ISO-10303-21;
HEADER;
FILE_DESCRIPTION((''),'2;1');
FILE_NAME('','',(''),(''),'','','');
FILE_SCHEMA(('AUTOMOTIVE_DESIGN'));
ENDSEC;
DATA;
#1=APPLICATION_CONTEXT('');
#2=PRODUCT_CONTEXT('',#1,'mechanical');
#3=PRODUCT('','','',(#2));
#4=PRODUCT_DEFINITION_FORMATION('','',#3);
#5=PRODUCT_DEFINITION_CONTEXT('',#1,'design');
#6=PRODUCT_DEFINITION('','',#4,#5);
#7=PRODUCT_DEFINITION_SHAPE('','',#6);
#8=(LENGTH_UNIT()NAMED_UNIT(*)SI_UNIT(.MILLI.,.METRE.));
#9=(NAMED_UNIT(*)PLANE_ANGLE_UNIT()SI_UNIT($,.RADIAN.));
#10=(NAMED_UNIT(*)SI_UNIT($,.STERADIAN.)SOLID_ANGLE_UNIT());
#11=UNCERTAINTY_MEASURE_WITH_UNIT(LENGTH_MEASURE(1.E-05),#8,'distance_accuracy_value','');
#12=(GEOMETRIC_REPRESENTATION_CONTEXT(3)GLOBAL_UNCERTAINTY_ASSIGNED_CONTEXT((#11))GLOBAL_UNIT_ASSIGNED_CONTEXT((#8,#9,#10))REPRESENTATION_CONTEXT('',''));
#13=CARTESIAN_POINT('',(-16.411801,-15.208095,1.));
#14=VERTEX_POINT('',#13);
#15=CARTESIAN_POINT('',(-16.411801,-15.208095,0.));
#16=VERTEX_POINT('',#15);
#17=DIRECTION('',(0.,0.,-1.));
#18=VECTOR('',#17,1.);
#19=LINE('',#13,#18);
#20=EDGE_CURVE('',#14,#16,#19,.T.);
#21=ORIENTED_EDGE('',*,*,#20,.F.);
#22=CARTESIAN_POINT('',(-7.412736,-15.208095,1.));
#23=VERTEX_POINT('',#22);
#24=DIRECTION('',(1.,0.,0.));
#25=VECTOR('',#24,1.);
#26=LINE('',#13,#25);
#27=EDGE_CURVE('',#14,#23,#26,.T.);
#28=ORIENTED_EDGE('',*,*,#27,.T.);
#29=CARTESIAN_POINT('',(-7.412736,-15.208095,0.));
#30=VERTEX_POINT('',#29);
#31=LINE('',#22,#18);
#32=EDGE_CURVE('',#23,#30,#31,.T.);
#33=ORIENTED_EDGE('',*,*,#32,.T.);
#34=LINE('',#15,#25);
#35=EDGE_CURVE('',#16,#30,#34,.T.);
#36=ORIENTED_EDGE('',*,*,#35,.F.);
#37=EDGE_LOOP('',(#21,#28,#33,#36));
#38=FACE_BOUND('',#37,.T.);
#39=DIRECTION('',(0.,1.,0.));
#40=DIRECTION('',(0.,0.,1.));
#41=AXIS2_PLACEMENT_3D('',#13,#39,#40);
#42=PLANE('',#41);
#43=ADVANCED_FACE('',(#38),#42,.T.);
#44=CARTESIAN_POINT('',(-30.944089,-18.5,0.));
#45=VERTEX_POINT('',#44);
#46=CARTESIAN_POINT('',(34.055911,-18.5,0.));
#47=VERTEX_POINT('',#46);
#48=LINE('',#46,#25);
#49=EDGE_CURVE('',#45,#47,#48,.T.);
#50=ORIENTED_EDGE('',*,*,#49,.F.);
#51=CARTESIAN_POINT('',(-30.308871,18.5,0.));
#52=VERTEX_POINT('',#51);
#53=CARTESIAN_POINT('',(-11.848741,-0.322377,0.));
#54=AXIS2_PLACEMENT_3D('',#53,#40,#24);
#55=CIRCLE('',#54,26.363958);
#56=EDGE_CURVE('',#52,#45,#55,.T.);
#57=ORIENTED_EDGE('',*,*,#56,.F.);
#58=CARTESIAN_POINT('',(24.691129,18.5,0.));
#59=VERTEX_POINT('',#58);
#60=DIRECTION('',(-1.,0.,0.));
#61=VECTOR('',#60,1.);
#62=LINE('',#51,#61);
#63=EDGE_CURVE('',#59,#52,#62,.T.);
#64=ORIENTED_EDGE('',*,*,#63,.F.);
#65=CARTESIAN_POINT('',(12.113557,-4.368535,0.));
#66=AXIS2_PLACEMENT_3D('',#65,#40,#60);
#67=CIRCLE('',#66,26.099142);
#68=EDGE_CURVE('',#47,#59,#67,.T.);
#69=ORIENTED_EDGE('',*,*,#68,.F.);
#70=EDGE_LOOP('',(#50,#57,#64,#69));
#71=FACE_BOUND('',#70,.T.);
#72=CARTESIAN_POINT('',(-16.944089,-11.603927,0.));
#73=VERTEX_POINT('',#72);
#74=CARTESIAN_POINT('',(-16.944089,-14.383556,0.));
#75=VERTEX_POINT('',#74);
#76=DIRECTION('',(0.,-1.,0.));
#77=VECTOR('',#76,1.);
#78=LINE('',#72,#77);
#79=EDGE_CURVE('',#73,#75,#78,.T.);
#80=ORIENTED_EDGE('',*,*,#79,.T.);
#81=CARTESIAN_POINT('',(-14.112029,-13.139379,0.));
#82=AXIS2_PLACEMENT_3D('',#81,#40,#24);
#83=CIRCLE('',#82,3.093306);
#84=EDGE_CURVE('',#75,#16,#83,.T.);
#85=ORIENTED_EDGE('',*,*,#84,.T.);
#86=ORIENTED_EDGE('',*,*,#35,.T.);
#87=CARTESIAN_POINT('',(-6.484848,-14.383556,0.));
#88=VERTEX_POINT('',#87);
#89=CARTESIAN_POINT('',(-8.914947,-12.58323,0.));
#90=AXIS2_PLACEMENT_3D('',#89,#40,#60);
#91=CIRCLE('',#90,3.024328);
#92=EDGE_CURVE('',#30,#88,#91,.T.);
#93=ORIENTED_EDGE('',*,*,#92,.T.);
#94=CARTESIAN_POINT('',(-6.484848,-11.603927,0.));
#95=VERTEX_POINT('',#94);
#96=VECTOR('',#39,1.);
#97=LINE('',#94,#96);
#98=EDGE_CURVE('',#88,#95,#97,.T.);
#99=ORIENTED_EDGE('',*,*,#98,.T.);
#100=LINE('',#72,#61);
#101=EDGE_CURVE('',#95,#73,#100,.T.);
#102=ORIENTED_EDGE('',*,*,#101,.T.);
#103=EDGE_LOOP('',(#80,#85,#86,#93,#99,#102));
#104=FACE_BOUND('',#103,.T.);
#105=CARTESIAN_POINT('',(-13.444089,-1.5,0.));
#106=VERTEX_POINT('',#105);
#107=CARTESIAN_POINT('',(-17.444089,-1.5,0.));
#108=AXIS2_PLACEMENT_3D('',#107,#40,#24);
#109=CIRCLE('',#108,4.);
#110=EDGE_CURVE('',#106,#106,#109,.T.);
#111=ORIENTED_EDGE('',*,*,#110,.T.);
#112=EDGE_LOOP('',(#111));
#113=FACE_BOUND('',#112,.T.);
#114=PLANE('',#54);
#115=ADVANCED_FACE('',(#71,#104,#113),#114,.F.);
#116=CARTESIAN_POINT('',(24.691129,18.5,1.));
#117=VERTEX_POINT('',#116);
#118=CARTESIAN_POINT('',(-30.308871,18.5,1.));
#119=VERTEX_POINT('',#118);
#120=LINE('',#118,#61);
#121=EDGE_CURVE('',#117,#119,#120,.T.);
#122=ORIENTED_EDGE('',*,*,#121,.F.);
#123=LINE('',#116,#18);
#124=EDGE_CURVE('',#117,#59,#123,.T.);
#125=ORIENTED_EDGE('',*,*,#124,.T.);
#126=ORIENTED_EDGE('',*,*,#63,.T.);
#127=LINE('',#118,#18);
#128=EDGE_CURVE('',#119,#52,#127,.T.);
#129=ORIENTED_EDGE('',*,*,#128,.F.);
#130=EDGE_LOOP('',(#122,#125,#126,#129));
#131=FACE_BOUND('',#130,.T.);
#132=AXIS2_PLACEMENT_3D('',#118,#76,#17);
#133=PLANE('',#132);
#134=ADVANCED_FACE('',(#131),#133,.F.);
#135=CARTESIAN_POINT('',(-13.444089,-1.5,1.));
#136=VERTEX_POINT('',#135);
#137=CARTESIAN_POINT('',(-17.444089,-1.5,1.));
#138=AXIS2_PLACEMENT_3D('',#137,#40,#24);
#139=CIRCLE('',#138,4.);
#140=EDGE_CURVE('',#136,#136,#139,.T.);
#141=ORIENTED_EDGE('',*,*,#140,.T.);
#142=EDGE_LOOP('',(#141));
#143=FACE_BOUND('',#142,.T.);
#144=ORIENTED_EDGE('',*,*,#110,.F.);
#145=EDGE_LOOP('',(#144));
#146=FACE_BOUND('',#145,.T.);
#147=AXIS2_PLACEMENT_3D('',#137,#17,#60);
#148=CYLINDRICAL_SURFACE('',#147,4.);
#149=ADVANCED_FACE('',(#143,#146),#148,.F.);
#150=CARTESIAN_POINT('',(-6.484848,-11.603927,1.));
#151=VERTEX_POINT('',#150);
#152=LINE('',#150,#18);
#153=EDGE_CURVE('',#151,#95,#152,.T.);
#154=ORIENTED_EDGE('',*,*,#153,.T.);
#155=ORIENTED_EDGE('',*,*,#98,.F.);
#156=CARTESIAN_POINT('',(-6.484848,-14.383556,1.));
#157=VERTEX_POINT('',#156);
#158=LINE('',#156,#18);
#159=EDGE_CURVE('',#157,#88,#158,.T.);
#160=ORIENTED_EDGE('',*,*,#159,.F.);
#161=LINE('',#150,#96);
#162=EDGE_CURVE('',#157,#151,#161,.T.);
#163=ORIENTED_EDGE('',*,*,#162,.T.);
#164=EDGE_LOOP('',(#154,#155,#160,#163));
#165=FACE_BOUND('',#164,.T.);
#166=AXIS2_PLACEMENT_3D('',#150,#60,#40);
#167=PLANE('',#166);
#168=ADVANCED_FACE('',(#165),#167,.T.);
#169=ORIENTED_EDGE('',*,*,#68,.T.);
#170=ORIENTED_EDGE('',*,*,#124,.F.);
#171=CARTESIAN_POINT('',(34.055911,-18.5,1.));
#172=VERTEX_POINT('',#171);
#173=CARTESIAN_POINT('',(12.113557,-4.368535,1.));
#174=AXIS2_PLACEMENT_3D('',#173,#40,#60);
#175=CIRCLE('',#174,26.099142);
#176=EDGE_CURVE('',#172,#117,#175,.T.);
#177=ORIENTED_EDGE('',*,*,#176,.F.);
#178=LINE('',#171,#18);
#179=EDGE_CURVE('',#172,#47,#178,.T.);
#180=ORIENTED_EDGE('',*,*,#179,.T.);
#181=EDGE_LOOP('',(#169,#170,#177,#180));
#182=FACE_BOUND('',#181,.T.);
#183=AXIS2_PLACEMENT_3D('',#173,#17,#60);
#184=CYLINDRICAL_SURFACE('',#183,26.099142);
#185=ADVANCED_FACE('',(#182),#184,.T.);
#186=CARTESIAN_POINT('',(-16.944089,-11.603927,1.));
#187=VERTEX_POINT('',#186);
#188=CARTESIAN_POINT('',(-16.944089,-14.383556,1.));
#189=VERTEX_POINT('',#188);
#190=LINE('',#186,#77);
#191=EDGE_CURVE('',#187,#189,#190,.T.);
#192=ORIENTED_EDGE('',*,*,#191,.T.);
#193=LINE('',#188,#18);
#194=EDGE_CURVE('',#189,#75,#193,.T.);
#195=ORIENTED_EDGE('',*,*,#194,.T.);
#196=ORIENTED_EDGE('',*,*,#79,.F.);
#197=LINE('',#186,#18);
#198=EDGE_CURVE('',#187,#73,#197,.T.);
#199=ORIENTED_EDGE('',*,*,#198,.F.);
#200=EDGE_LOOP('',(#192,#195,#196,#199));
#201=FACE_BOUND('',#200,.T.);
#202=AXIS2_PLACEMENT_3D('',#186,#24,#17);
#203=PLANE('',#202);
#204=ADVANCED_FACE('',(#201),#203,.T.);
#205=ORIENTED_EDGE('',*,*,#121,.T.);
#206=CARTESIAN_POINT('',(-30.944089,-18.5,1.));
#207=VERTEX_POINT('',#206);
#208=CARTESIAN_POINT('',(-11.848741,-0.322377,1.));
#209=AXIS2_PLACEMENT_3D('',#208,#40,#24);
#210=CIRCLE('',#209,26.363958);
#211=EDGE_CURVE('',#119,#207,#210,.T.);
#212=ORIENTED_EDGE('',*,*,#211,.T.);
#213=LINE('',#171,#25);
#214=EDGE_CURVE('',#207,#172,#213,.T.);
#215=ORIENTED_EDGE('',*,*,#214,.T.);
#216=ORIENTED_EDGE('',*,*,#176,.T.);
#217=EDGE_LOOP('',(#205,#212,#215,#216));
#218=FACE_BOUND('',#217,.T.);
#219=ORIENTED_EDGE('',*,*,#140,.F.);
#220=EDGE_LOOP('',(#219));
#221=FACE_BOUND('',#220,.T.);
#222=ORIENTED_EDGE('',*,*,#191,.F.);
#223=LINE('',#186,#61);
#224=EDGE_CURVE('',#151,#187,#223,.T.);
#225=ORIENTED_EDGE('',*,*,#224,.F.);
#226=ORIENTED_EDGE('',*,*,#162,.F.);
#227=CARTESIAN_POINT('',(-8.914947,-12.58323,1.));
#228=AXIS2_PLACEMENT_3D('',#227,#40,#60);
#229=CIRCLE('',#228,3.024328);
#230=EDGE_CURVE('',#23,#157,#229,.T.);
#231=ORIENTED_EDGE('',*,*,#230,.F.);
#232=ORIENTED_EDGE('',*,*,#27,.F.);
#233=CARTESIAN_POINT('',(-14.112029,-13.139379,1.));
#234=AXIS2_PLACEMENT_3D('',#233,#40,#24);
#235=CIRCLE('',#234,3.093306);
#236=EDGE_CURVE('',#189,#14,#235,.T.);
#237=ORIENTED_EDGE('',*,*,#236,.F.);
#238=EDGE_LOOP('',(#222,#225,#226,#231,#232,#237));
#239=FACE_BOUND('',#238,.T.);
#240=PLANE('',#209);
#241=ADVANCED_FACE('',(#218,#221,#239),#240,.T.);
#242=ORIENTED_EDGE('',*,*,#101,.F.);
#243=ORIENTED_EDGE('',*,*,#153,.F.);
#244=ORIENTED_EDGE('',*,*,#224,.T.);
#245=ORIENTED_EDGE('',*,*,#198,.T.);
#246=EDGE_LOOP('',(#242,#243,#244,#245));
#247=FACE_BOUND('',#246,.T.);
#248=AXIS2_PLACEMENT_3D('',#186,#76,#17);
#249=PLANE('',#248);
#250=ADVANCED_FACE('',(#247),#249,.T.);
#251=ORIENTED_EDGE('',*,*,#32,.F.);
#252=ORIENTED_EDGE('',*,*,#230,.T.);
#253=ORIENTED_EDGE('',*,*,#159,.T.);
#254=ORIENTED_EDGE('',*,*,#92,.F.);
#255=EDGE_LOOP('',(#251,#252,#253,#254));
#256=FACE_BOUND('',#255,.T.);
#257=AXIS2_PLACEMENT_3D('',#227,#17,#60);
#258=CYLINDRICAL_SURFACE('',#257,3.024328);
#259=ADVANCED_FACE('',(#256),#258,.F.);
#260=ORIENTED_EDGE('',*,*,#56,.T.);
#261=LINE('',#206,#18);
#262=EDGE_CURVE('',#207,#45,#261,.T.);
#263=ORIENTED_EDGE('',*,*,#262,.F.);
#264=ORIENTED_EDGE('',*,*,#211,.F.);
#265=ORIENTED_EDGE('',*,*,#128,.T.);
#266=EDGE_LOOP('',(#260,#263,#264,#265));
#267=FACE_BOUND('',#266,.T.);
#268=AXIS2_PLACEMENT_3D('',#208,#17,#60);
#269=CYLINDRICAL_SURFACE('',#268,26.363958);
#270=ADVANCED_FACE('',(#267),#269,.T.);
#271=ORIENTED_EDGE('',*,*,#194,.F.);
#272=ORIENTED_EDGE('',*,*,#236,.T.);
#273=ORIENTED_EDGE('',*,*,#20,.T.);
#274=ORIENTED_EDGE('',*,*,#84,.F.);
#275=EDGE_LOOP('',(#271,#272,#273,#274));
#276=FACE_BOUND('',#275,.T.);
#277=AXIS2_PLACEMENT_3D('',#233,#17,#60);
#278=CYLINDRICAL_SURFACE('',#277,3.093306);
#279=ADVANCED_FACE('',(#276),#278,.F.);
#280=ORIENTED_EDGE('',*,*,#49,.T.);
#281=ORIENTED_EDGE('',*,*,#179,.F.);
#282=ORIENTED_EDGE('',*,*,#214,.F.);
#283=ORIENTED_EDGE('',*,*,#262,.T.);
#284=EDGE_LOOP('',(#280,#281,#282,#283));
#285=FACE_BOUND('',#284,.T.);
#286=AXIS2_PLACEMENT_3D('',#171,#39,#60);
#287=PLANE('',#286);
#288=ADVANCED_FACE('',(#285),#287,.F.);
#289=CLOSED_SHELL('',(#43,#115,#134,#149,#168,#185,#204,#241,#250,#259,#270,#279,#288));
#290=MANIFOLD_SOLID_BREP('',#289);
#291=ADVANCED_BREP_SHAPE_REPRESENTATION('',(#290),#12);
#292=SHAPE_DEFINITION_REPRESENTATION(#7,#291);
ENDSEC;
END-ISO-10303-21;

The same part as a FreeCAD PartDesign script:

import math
import FreeCAD as App
import Part
import Sketcher
Q = App.Units.Quantity

doc = App.newDocument("Part")
body = doc.addObject("PartDesign::Body", "Body")

# Sketch on XY plane
sketch1 = body.newObject("Sketcher::SketchObject", "Sketch")
sketch1.AttachmentSupport = (doc.getObject("XY_Plane"), [""])
sketch1.MapMode = "FlatFace"
sketch1.addGeometry(Part.LineSegment(App.Vector(24.7, 18.5, 0), App.Vector(-30.3, 18.5, 0)), False)
sketch1.addGeometry(Part.ArcOfCircle(Part.Circle(App.Vector(-11.8, -0.3, 0), App.Vector(0, 0, 1), 26.4), math.radians(134), math.radians(224)), False)
sketch1.addGeometry(Part.LineSegment(App.Vector(-30.9, -18.5, 0), App.Vector(34.1, -18.5, 0)), False)
sketch1.addGeometry(Part.ArcOfCircle(Part.Circle(App.Vector(12.1, -4.4, 0), App.Vector(0, 0, 1), 26.1), math.radians(-33), math.radians(61)), False)
sketch1.addGeometry(Part.LineSegment(App.Vector(-16.9, -11.6, 0), App.Vector(-6.5, -11.6, 0)), False)
sketch1.addGeometry(Part.LineSegment(App.Vector(-6.5, -11.6, 0), App.Vector(-6.5, -14.4, 0)), False)
sketch1.addGeometry(Part.ArcOfCircle(Part.Circle(App.Vector(-8.9, -12.6, 0), App.Vector(0, 0, 1), 3), math.radians(-60), math.radians(-37)), False)
sketch1.addGeometry(Part.LineSegment(App.Vector(-7.4, -15.2, 0), App.Vector(-16.4, -15.2, 0)), False)
sketch1.addGeometry(Part.ArcOfCircle(Part.Circle(App.Vector(-14.1, -13.1, 0), App.Vector(0, 0, 1), 3.1), math.radians(-156.28), math.radians(-138.03)), False)
sketch1.addGeometry(Part.LineSegment(App.Vector(-16.9, -14.4, 0), App.Vector(-16.9, -11.6, 0)), False)
sketch1.addGeometry(Part.Circle(App.Vector(-17.4, -1.5, 0), App.Vector(0, 0, 1), 4), False)
sketch1.addConstraint(Sketcher.Constraint("Coincident", 0, 2, 1, 1))
sketch1.addConstraint(Sketcher.Constraint("Coincident", 1, 2, 2, 1))
sketch1.addConstraint(Sketcher.Constraint("Coincident", 2, 2, 3, 1))
sketch1.addConstraint(Sketcher.Constraint("Coincident", 3, 2, 0, 1))
sketch1.addConstraint(Sketcher.Constraint("Coincident", 4, 2, 5, 1))
sketch1.addConstraint(Sketcher.Constraint("Coincident", 5, 2, 6, 2))
sketch1.addConstraint(Sketcher.Constraint("Coincident", 6, 1, 7, 1))
sketch1.addConstraint(Sketcher.Constraint("Coincident", 7, 2, 8, 2))
sketch1.addConstraint(Sketcher.Constraint("Coincident", 8, 1, 9, 1))
sketch1.addConstraint(Sketcher.Constraint("Coincident", 9, 2, 4, 1))
sketch1.addConstraint(Sketcher.Constraint("Horizontal", 0))
sketch1.addConstraint(Sketcher.Constraint("Horizontal", 2))
sketch1.addConstraint(Sketcher.Constraint("Horizontal", 4))
sketch1.addConstraint(Sketcher.Constraint("Vertical", 5))
sketch1.addConstraint(Sketcher.Constraint("Horizontal", 7))
sketch1.addConstraint(Sketcher.Constraint("Vertical", 9))
sketch1.addConstraint(Sketcher.Constraint("Horizontal", 5, 2, 8, 1))
sketch1.addConstraint(Sketcher.Constraint("Diameter", 10, Q("8 mm")))
sketch1.addConstraint(Sketcher.Constraint("DistanceX", 0, 2, 0, 1, Q("55 mm")))
sketch1.addConstraint(Sketcher.Constraint("DistanceX", 2, 1, 2, 2, Q("65 mm")))
sketch1.addConstraint(Sketcher.Constraint("DistanceY", 10, 3, 0, 2, Q("20 mm")))
sketch1.addConstraint(Sketcher.Constraint("DistanceY", 1, 2, 10, 3, Q("17 mm")))
sketch1.addConstraint(Sketcher.Constraint("DistanceY", 10, 3, -1, 1, Q("1.5 mm")))
sketch1.addConstraint(Sketcher.Constraint("DistanceX", 1, 2, 10, 3, Q("13.5 mm")))
sketch1.addConstraint(Sketcher.Constraint("DistanceX", 10, 3, 9, 2, Q("0.5 mm")))
sketch1.addConstraint(Sketcher.Constraint("Radius", 1, Q("26.363958 mm")))
sketch1.addConstraint(Sketcher.Constraint("Radius", 3, Q("26.099142 mm")))
sketch1.addConstraint(Sketcher.Constraint("Radius", 6, Q("3.024328 mm")))
sketch1.addConstraint(Sketcher.Constraint("Radius", 8, Q("3.093306 mm")))
sketch1.addConstraint(Sketcher.Constraint("DistanceY", 8, 3, 1, 3, Q("12.817002 mm")))
sketch1.addConstraint(Sketcher.Constraint("DistanceX", 4, 1, 4, 2, Q("10.45924 mm")))
sketch1.addConstraint(Sketcher.Constraint("DistanceY", 5, 2, 5, 1, Q("2.779629 mm")))
sketch1.addConstraint(Sketcher.Constraint("DistanceX", 7, 2, -1, 1, Q("16.411801 mm")))
sketch1.addConstraint(Sketcher.Constraint("DistanceX", 6, 3, 4, 2, Q("2.430099 mm")))
sketch1.addConstraint(Sketcher.Constraint("DistanceX", 7, 2, 7, 1, Q("8.999065 mm")))
sketch1.addConstraint(Sketcher.Constraint("DistanceX", 1, 3, -1, 1, Q("11.848741 mm")))
sketch1.addConstraint(Sketcher.Constraint("DistanceY", 6, 3, -1, 1, Q("12.58323 mm")))
pad1 = body.newObject("PartDesign::Pad", "Pad")
pad1.Profile = sketch1
pad1.Length = 1

doc.recompute()
